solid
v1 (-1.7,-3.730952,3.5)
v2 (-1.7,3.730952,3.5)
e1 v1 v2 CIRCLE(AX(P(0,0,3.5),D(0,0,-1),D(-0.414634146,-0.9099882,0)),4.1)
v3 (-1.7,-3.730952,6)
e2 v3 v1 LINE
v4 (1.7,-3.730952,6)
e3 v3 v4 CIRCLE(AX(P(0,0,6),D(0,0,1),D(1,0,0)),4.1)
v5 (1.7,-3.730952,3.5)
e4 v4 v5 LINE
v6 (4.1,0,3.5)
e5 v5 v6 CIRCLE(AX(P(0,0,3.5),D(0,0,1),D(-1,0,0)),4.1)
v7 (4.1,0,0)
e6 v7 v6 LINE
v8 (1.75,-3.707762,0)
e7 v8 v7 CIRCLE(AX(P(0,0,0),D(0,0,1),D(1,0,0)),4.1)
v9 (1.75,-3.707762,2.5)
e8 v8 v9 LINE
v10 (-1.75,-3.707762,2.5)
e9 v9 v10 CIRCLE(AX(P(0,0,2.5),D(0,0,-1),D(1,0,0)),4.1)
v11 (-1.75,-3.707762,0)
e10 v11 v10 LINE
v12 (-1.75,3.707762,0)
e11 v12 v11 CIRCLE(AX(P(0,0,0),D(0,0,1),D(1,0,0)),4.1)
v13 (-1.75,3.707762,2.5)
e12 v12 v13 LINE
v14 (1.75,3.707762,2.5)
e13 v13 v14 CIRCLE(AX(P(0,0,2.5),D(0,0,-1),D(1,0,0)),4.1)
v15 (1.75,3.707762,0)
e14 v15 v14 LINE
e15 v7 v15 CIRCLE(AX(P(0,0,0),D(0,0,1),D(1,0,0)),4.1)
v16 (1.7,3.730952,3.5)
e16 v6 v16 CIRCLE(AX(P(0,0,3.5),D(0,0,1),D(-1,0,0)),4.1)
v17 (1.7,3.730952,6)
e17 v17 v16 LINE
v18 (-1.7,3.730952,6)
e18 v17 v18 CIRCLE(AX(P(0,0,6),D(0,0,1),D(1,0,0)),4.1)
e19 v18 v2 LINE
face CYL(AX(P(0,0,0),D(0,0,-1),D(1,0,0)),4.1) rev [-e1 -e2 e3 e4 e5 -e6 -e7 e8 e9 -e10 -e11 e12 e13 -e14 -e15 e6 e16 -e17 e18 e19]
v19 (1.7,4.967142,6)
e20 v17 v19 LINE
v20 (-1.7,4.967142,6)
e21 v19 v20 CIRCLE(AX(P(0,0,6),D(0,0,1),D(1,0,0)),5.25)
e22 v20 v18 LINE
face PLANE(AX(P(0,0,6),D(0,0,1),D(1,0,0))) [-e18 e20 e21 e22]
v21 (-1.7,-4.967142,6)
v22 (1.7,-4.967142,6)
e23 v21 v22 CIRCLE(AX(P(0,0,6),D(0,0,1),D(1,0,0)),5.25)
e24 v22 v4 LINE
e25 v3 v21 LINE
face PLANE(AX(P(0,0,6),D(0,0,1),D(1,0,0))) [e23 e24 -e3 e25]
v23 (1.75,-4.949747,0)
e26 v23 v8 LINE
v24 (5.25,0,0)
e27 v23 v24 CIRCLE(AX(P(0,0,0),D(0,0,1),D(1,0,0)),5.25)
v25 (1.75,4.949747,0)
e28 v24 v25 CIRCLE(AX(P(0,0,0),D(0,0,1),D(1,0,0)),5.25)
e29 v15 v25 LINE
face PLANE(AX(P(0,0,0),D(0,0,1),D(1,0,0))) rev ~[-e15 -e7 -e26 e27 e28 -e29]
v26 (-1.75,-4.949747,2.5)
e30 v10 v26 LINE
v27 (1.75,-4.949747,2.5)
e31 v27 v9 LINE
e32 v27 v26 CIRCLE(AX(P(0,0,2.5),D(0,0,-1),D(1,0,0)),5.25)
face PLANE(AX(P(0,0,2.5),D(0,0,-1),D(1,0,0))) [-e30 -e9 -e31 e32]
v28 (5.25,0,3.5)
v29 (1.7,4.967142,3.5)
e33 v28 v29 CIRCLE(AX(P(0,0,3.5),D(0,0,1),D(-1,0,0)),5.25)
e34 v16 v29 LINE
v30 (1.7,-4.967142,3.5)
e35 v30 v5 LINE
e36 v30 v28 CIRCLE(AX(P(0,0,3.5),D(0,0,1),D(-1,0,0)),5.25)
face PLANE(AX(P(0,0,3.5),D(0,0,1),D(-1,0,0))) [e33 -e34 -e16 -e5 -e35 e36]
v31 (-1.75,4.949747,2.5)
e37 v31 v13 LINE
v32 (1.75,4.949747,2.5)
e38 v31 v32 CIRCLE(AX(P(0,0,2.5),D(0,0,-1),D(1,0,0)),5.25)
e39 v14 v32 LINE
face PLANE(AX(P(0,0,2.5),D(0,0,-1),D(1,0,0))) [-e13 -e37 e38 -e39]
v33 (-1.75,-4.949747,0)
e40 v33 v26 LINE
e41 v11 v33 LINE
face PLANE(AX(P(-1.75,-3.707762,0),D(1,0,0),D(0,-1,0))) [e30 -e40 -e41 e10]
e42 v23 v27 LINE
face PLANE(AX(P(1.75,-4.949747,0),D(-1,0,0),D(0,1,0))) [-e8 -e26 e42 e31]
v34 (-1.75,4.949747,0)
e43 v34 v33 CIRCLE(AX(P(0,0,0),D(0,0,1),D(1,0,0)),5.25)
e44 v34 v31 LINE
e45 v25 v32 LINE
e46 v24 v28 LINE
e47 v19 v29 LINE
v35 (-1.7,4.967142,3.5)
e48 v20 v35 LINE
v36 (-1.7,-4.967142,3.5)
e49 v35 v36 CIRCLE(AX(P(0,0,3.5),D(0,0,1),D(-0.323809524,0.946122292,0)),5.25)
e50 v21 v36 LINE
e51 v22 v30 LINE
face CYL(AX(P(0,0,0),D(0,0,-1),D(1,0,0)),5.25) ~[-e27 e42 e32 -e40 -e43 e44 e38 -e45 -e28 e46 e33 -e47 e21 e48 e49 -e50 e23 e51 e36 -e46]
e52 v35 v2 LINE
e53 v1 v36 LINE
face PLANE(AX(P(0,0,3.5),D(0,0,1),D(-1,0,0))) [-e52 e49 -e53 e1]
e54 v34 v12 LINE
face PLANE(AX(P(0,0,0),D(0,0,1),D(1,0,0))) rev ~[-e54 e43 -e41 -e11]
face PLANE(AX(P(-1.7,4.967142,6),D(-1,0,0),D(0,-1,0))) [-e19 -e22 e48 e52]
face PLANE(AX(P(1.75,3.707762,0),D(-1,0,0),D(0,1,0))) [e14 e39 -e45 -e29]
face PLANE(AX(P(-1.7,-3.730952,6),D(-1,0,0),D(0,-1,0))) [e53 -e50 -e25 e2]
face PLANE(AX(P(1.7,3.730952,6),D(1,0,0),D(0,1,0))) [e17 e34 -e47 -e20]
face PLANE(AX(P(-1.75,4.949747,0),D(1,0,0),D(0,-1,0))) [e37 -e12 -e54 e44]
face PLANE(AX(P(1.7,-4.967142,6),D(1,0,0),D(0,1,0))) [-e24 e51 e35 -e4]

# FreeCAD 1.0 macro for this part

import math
import FreeCAD as App
import Part
import Sketcher
Q = App.Units.Quantity

doc = App.newDocument("Part")
body = doc.addObject("PartDesign::Body", "Body")

# Sketch on XY plane
sketch1 = body.newObject("Sketcher::SketchObject", "Sketch")
sketch1.AttachmentSupport = (doc.getObject("XY_Plane"), [""])
sketch1.MapMode = "FlatFace"
sketch1.addGeometry([
    Part.Circle(App.Vector(0, 0, 0), App.Vector(0, 0, 1), 5.2),
    Part.Circle(App.Vector(0, 0, 0), App.Vector(0, 0, 1), 4.1),
], False)
sketch1.addConstraint([
    Sketcher.Constraint("Coincident", 0, 3, -1, 1),
    Sketcher.Constraint("Coincident", 1, 3, -1, 1),
    Sketcher.Constraint("Diameter", 0, Q("10.5 mm")),
    Sketcher.Constraint("Diameter", 1, Q("8.2 mm")),
])
pad1 = body.newObject("PartDesign::Pad", "Pad")
pad1.Profile = sketch1
pad1.Length = 6

# Sketch on XY plane
sketch2 = body.newObject("Sketcher::SketchObject", "Sketch001")
sketch2.AttachmentSupport = (doc.getObject("XY_Plane"), [""])
sketch2.MapMode = "FlatFace"
sketch2.addGeometry([
    Part.ArcOfCircle(Part.Circle(App.Vector(0, 0, 0), App.Vector(0, 0, 1), 4.1), math.radians(-115), math.radians(-65)),  # 0
    Part.LineSegment(App.Vector(1.8, -3.7, 0), App.Vector(1.8, -4.9, 0)),  # 1
    Part.ArcOfCircle(Part.Circle(App.Vector(0, 0, 0), App.Vector(0, 0, 1), 5.2), math.radians(-109), math.radians(-71)),  # 2
    Part.LineSegment(App.Vector(-1.8, -4.9, 0), App.Vector(-1.8, -3.7, 0)),  # 3
    Part.LineSegment(App.Vector(1.8, 4.9, 0), App.Vector(1.8, 3.7, 0)),  # 4
    Part.ArcOfCircle(Part.Circle(App.Vector(0, 0, 0), App.Vector(0, 0, 1), 4.1), math.radians(65), math.radians(115)),  # 5
    Part.LineSegment(App.Vector(-1.8, 3.7, 0), App.Vector(-1.8, 4.9, 0)),  # 6
    Part.ArcOfCircle(Part.Circle(App.Vector(0, 0, 0), App.Vector(0, 0, 1), 5.2), math.radians(71), math.radians(109)),  # 7
], False)
sketch2.addConstraint([
    Sketcher.Constraint("Coincident", 0, 2, 1, 1),
    Sketcher.Constraint("Coincident", 1, 2, 2, 2),
    Sketcher.Constraint("Coincident", 2, 1, 3, 1),
    Sketcher.Constraint("Coincident", 3, 2, 0, 1),
    Sketcher.Constraint("Coincident", 4, 2, 5, 1),
    Sketcher.Constraint("Coincident", 5, 2, 6, 1),
    Sketcher.Constraint("Coincident", 6, 2, 7, 2),
    Sketcher.Constraint("Coincident", 7, 1, 4, 1),
    Sketcher.Constraint("Vertical", 1),
    Sketcher.Constraint("Vertical", 3),
    Sketcher.Constraint("Vertical", 4),
    Sketcher.Constraint("Vertical", 6),
    Sketcher.Constraint("Coincident", 0, 3, -1, 1),
    Sketcher.Constraint("Coincident", 2, 3, -1, 1),
    Sketcher.Constraint("Coincident", 5, 3, -1, 1),
    Sketcher.Constraint("Coincident", 7, 3, -1, 1),
    Sketcher.Constraint("Equal", 0, 5),
    Sketcher.Constraint("Equal", 2, 7),
    Sketcher.Constraint("Horizontal", 1, 2, 2, 1),
    Sketcher.Constraint("Horizontal", 4, 2, 5, 2),
    Sketcher.Constraint("Vertical", 1, 2, 4, 2),
    Sketcher.Constraint("Radius", 0, Q("4.1 mm")),
    Sketcher.Constraint("DistanceX", 2, 1, 1, 2, Q("3.5 mm")),
    Sketcher.Constraint("Radius", 2, Q("5.25 mm")),
])
pocket1 = body.newObject("PartDesign::Pocket", "Pocket")
pocket1.Profile = sketch2
pocket1.Length = 2.5
pocket1.Reversed = True

# Sketch on XY plane
sketch3 = body.newObject("Sketcher::SketchObject", "Sketch002")
sketch3.AttachmentSupport = (doc.getObject("XY_Plane"), [""])
sketch3.MapMode = "FlatFace"
sketch3.AttachmentOffset = App.Placement(App.Vector(0, 0, 6), App.Rotation())
sketch3.addGeometry([
    Part.ArcOfCircle(Part.Circle(App.Vector(0, 0, 0), App.Vector(0, 0, 1), 4.1), math.radians(114), math.radians(246)),  # 0
    Part.LineSegment(App.Vector(-1.7, 3.7, 0), App.Vector(-1.7, 5, 0)),  # 1
    Part.ArcOfCircle(Part.Circle(App.Vector(0, 0, 0), App.Vector(0, 0, 1), 5.2), math.radians(109), math.radians(251)),  # 2
    Part.LineSegment(App.Vector(-1.7, -5, 0), App.Vector(-1.7, -3.7, 0)),  # 3
    Part.ArcOfCircle(Part.Circle(App.Vector(0, 0, 0), App.Vector(0, 0, 1), 4.1), math.radians(-66), math.radians(66)),  # 4
    Part.LineSegment(App.Vector(1.7, -3.7, 0), App.Vector(1.7, -5, 0)),  # 5
    Part.ArcOfCircle(Part.Circle(App.Vector(0, 0, 0), App.Vector(0, 0, 1), 5.2), math.radians(-71), math.radians(71)),  # 6
    Part.LineSegment(App.Vector(1.7, 5, 0), App.Vector(1.7, 3.7, 0)),  # 7
], False)
sketch3.addConstraint([
    Sketcher.Constraint("Coincident", 0, 1, 1, 1),
    Sketcher.Constraint("Coincident", 1, 2, 2, 1),
    Sketcher.Constraint("Coincident", 2, 2, 3, 1),
    Sketcher.Constraint("Coincident", 3, 2, 0, 2),
    Sketcher.Constraint("Coincident", 4, 1, 5, 1),
    Sketcher.Constraint("Coincident", 5, 2, 6, 1),
    Sketcher.Constraint("Coincident", 6, 2, 7, 1),
    Sketcher.Constraint("Coincident", 7, 2, 4, 2),
    Sketcher.Constraint("Vertical", 1),
    Sketcher.Constraint("Vertical", 3),
    Sketcher.Constraint("Vertical", 5),
    Sketcher.Constraint("Vertical", 7),
    Sketcher.Constraint("Coincident", 0, 3, -1, 1),
    Sketcher.Constraint("Coincident", 2, 3, -1, 1),
    Sketcher.Constraint("Coincident", 4, 3, -1, 1),
    Sketcher.Constraint("Coincident", 6, 3, -1, 1),
    Sketcher.Constraint("Equal", 0, 4),
    Sketcher.Constraint("Equal", 2, 6),
    Sketcher.Constraint("Horizontal", 3, 2, 4, 1),
    Sketcher.Constraint("Horizontal", 1, 2, 6, 2),
    Sketcher.Constraint("Vertical", 1, 2, 2, 2),
    Sketcher.Constraint("Radius", 0, Q("4.1 mm")),
    Sketcher.Constraint("DistanceX", 3, 2, 4, 1, Q("3.4 mm")),
    Sketcher.Constraint("Radius", 2, Q("5.25 mm")),
])
pocket2 = body.newObject("PartDesign::Pocket", "Pocket001")
pocket2.Profile = sketch3
pocket2.Length = 2.5

doc.recompute()
